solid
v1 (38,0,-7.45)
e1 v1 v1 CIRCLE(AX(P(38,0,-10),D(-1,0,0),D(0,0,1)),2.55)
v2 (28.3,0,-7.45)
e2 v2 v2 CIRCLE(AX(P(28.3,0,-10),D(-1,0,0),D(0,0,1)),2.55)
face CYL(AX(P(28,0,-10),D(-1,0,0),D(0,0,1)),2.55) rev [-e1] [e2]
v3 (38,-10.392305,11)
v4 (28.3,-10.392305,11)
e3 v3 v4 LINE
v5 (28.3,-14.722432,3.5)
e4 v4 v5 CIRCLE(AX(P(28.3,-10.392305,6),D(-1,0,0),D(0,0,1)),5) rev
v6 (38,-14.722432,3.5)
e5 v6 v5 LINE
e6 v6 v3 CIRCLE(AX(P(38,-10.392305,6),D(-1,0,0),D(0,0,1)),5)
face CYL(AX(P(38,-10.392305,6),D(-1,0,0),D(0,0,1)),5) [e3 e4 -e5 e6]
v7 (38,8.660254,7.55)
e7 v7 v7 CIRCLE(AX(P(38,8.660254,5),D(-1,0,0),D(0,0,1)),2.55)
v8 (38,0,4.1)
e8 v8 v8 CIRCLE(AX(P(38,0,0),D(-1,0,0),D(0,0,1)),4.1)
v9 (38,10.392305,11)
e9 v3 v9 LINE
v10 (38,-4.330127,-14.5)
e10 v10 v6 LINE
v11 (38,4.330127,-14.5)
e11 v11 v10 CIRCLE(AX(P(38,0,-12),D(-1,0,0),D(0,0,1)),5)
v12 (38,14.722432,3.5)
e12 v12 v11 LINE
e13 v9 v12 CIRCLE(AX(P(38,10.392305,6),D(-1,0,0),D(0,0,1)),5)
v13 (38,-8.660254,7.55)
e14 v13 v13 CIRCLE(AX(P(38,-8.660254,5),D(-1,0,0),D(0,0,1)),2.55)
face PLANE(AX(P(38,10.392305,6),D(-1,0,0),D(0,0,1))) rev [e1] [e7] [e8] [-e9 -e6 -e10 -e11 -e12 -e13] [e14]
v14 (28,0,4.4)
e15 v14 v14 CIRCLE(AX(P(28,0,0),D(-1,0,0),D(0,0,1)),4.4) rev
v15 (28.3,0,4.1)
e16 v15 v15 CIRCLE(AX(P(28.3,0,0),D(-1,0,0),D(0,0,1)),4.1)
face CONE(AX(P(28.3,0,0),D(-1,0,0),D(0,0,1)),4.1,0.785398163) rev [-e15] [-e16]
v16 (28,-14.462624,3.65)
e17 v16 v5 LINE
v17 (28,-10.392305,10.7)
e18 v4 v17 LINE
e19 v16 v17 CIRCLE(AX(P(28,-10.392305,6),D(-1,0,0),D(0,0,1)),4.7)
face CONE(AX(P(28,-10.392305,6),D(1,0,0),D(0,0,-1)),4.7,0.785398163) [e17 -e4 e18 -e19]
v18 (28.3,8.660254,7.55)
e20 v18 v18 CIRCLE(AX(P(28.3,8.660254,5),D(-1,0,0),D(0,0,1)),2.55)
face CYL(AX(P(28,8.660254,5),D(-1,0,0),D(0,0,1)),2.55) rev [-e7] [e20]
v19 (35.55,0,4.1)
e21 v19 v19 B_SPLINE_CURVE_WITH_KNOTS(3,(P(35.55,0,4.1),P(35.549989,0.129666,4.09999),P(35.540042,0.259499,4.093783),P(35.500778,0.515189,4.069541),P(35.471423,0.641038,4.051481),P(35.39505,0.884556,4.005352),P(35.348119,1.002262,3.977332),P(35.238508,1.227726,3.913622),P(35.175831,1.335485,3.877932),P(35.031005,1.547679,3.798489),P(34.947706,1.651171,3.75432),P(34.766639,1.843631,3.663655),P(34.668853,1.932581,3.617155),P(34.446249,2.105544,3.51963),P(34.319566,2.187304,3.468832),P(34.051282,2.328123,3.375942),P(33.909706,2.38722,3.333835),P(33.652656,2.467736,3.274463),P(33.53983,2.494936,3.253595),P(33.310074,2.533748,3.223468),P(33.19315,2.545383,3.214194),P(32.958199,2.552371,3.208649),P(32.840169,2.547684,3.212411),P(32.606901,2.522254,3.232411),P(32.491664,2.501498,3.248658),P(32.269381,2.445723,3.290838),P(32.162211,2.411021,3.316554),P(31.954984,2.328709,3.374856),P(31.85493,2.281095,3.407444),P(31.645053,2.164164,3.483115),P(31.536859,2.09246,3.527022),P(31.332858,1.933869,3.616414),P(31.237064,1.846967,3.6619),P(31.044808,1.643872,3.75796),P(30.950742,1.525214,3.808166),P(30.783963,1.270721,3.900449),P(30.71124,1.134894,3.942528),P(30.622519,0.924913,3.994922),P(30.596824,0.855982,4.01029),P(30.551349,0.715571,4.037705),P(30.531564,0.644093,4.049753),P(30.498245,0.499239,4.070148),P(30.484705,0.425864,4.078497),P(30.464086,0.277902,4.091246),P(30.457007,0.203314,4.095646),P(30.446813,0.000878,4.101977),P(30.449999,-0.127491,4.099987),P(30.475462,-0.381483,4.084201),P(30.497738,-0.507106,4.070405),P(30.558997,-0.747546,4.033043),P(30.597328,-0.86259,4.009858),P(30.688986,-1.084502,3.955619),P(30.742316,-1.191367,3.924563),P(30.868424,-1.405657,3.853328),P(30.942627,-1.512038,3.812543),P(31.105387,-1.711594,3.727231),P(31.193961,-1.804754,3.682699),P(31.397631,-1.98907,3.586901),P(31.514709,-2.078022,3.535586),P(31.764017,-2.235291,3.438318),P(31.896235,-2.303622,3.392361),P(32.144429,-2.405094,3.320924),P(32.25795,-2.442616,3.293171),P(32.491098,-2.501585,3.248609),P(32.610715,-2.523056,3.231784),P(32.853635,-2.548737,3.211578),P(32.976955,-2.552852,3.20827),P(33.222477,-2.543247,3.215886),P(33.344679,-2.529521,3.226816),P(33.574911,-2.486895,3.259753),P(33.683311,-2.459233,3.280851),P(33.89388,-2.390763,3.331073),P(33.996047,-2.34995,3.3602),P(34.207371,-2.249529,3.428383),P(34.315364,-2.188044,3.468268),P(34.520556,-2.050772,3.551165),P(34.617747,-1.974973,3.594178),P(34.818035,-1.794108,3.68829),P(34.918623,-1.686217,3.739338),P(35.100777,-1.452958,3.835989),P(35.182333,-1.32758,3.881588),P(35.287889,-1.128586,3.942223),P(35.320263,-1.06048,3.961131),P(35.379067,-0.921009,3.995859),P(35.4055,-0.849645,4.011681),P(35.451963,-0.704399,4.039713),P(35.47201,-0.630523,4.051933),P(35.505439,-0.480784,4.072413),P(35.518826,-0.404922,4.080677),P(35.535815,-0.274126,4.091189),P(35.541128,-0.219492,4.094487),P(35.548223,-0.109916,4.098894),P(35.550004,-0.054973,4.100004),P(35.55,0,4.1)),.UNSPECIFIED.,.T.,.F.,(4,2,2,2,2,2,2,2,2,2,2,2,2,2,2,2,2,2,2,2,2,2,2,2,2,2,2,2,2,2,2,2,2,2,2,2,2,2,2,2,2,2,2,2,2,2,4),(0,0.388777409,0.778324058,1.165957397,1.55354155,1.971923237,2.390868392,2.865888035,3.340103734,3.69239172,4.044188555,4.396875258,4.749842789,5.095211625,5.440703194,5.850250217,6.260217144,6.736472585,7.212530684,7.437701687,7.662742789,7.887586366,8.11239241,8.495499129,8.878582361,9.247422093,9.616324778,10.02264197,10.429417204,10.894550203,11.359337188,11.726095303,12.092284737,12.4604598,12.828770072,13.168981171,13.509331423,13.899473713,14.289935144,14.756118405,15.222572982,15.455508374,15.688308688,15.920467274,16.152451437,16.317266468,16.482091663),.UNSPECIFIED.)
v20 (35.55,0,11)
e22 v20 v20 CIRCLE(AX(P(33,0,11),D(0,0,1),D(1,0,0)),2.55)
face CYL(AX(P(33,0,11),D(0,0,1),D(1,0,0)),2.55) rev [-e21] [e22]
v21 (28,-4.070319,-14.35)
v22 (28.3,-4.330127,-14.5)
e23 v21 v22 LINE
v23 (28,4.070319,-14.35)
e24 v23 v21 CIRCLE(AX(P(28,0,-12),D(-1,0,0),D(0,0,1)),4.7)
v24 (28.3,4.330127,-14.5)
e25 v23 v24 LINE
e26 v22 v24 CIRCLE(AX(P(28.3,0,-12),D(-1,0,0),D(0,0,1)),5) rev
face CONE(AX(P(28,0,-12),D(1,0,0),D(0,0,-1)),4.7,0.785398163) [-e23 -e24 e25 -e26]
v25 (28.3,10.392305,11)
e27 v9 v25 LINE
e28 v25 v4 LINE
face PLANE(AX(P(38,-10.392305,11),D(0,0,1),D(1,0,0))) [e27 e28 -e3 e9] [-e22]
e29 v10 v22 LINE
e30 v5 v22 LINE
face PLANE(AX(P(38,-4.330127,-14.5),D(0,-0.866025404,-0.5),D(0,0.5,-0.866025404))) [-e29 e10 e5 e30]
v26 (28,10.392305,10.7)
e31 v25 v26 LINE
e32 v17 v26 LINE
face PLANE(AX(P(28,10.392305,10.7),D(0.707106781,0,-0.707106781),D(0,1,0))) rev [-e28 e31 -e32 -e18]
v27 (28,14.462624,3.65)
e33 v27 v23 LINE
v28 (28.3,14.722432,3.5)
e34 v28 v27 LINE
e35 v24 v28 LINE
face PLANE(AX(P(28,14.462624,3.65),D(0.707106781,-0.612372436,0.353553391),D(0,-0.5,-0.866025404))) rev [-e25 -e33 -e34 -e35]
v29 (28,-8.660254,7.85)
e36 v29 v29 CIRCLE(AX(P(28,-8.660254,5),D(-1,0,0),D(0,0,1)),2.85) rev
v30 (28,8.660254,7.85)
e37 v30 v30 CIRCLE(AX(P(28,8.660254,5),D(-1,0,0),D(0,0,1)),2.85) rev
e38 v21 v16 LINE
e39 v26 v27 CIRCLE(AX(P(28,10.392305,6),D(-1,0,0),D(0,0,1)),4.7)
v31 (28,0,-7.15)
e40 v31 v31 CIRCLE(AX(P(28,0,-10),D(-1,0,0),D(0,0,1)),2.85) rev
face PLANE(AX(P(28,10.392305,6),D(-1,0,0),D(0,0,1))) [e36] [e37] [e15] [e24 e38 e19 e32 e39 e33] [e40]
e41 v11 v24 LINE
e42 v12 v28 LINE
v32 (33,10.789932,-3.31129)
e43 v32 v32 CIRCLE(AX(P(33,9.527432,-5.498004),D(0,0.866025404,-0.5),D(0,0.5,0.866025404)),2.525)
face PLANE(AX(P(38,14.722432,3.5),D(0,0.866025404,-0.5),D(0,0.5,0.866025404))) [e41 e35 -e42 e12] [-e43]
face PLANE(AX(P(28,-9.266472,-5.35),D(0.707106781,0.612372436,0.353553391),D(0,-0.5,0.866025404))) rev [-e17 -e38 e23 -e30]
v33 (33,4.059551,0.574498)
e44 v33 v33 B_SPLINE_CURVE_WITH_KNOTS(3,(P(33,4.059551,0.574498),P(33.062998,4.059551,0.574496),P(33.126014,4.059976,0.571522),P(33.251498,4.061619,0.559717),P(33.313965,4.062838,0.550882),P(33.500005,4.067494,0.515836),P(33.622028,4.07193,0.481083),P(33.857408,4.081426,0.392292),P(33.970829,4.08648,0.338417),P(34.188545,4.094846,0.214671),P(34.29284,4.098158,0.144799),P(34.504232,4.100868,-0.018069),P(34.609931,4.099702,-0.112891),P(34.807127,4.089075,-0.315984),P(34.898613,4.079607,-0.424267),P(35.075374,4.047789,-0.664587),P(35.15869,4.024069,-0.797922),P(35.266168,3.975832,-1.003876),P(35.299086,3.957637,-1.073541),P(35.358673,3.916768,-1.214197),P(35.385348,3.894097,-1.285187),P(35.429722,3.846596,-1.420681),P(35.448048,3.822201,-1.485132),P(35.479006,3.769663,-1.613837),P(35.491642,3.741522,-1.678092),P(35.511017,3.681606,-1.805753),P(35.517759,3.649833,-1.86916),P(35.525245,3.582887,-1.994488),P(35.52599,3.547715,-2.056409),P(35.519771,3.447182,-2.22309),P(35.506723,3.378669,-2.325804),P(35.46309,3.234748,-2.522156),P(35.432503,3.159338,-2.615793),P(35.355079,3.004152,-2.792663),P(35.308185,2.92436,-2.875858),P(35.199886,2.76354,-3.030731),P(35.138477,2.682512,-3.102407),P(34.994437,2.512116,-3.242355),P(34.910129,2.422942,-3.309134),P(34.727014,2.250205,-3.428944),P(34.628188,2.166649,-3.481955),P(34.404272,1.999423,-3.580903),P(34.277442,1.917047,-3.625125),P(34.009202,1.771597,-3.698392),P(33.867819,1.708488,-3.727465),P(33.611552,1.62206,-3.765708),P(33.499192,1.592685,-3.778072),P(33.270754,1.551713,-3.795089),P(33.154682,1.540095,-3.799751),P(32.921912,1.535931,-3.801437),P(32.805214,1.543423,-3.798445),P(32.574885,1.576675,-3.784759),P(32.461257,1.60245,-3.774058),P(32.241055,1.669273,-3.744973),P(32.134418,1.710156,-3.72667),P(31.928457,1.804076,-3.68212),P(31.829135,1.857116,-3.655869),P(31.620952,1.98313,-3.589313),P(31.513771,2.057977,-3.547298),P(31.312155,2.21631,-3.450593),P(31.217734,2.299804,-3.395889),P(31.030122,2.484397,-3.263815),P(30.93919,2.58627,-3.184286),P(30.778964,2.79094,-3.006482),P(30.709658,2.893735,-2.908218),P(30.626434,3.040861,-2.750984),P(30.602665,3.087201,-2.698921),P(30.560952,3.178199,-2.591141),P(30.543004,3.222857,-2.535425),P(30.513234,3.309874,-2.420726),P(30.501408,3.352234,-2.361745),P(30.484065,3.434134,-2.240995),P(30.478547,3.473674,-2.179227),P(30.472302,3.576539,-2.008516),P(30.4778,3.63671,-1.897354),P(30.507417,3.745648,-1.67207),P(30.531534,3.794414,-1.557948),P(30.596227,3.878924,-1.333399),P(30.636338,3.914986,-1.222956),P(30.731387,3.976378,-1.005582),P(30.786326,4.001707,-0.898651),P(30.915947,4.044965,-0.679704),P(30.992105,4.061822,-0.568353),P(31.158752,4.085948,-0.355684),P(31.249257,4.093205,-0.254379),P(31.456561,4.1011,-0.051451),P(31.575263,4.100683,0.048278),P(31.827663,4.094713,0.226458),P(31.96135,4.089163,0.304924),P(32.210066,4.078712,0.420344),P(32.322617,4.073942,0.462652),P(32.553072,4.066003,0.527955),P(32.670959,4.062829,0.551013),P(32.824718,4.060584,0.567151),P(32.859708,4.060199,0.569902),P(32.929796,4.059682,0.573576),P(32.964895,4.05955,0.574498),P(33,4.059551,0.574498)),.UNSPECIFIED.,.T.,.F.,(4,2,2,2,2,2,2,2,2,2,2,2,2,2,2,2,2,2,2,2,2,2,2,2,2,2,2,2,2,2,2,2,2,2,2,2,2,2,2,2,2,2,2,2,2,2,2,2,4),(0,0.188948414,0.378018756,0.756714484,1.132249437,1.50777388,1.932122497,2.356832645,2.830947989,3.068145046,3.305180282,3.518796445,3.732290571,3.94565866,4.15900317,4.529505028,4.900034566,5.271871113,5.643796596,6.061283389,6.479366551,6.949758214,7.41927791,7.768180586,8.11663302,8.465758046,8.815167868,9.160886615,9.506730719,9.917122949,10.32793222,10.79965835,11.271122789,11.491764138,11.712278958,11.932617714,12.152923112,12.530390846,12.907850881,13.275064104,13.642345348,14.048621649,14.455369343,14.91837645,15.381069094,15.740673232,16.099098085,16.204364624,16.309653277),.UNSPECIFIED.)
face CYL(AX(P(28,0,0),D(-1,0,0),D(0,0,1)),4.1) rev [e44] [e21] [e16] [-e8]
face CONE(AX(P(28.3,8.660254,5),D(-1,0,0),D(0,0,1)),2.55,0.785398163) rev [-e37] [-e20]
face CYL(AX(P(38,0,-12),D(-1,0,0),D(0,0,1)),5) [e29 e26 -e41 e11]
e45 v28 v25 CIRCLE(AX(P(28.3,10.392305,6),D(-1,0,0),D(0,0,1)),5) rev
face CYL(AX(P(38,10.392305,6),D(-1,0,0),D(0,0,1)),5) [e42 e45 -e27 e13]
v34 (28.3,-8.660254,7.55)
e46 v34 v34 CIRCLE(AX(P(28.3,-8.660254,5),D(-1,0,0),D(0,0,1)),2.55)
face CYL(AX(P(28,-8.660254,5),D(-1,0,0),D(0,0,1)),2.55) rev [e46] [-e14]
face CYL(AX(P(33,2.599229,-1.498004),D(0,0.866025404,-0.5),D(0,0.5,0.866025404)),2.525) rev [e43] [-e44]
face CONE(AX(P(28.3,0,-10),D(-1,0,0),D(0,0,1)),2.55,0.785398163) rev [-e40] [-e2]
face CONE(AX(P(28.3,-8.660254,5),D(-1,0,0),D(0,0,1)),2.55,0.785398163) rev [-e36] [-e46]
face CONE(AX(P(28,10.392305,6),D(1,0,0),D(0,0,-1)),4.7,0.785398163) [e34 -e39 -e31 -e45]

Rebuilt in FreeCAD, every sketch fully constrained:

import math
import FreeCAD as App
import Part
import Sketcher

V = App.Vector
Q = App.Units.Quantity


def edges_at(feature, points):
    """Names of the edges that pass closest to the given points."""
    edges = feature.Shape.Edges
    near = lambda p: min(range(len(edges)), key=lambda i: edges[i].distToShape(Part.Vertex(*p))[0])
    return sorted({f"Edge{near(p) + 1}" for p in points})

doc = App.newDocument("Part")
body = doc.addObject("PartDesign::Body", "Body")

# Sketch on YZ plane
sketch1 = body.newObject("Sketcher::SketchObject", "Sketch")
sketch1.AttachmentSupport = (doc.getObject("YZ_Plane"), [""])
sketch1.MapMode = "FlatFace"
sketch1.AttachmentOffset = App.Placement(V(0, 0, 28), App.Rotation())
sketch1.addGeometry([
    Part.LineSegment(V(15, 4, 0), V(4, -14, 0)),  # 0
    Part.ArcOfCircle(Part.Circle(V(0, -12, 0), V(0, 0, 1), 5), math.radians(-150), math.radians(-30)),  # 1
    Part.LineSegment(V(-4, -14, 0), V(-15, 4, 0)),  # 2
    Part.ArcOfCircle(Part.Circle(V(-10, 6, 0), V(0, 0, 1), 5), math.radians(90), math.radians(210)),  # 3
    Part.LineSegment(V(-10, 11, 0), V(10, 11, 0)),  # 4
    Part.ArcOfCircle(Part.Circle(V(10, 6, 0), V(0, 0, 1), 5), math.radians(-30), math.radians(90)),  # 5
], False)
sketch1.addConstraint([
    Sketcher.Constraint("Tangent", 0, 2, 1, 2),
    Sketcher.Constraint("Tangent", 1, 1, 2, 1),
    Sketcher.Constraint("Tangent", 2, 2, 3, 2),
    Sketcher.Constraint("Tangent", 3, 1, 4, 1),
    Sketcher.Constraint("Tangent", 4, 2, 5, 2),
    Sketcher.Constraint("Tangent", 5, 1, 0, 1),
    Sketcher.Constraint("Horizontal", 4),
    Sketcher.Constraint("Equal", 1, 3),
    Sketcher.Constraint("Equal", 3, 5),
    Sketcher.Constraint("Symmetric", 0, 2, 1, 1, -2),
    Sketcher.Constraint("Radius", 1, 5.0),
    Sketcher.Constraint("Angle", 0, Q("-120 deg")),
    Sketcher.Constraint("DistanceY", 1, 3, -1, 1, 12.0),
    Sketcher.Constraint("DistanceY", -1, 1, 3, 3, 6.0),
])
pad1 = body.newObject("PartDesign::Pad", "Pad")
pad1.Profile = sketch1
pad1.Length = 10

# Sketch on YZ plane
sketch2 = body.newObject("Sketcher::SketchObject", "Sketch001")
sketch2.AttachmentSupport = (doc.getObject("YZ_Plane"), [""])
sketch2.MapMode = "FlatFace"
sketch2.AttachmentOffset = App.Placement(V(0, 0, 28), App.Rotation())
sketch2.addGeometry([
    Part.Circle(V(0, -10, 0), V(0, 0, 1), 2.5),
    Part.Circle(V(8.7, 5, 0), V(0, 0, 1), 2.5),
    Part.Circle(V(-8.7, 5, 0), V(0, 0, 1), 2.5),
], False)
sketch2.addConstraint([
    Sketcher.Constraint("Equal", 0, 1),
    Sketcher.Constraint("Equal", 1, 2),
    Sketcher.Constraint("Symmetric", 1, 3, 2, 3, -2),
    Sketcher.Constraint("PointOnObject", 0, 3, -2),
    Sketcher.Constraint("Diameter", 0, 5.1),
    Sketcher.Constraint("DistanceY", 0, 3, -1, 1, 10.0),
    Sketcher.Constraint("DistanceY", -1, 1, 1, 3, 5.0),
    Sketcher.Constraint("DistanceX", 2, 3, 1, 3, 17.320508),
])
doc.recompute()
hole = body.newObject("PartDesign::Hole", "Hole")
hole.Profile = sketch2
hole.ThreadType = "None"
hole.Diameter = 5.1
hole.DepthType = "ThroughAll"
hole.Reversed = True

# Sketch on YZ plane
sketch3 = body.newObject("Sketcher::SketchObject", "Sketch002")
sketch3.AttachmentSupport = (doc.getObject("YZ_Plane"), [""])
sketch3.MapMode = "FlatFace"
sketch3.AttachmentOffset = App.Placement(V(0, 0, 28), App.Rotation())
sketch3.addGeometry(Part.Circle(V(0, 0, 0), V(0, 0, 1), 4.1), False)
sketch3.addConstraint([
    Sketcher.Constraint("Coincident", 0, 3, -1, 1),
    Sketcher.Constraint("Diameter", 0, 8.2),
])
doc.recompute()
hole2 = body.newObject("PartDesign::Hole", "Hole001")
hole2.Profile = sketch3
hole2.ThreadType = "None"
hole2.Diameter = 8.2
hole2.DepthType = "ThroughAll"
hole2.Reversed = True

# Sketch on XY plane
sketch4 = body.newObject("Sketcher::SketchObject", "Sketch003")
sketch4.AttachmentSupport = (doc.getObject("XY_Plane"), [""])
sketch4.MapMode = "FlatFace"
sketch4.AttachmentOffset = App.Placement(V(0, 0, 11), App.Rotation())
sketch4.addGeometry(Part.Circle(V(33, 0, 0), V(0, 0, 1), 2.5), False)
sketch4.addConstraint([
    Sketcher.Constraint("PointOnObject", 0, 3, -1),
    Sketcher.Constraint("Diameter", 0, 5.1),
    Sketcher.Constraint("DistanceX", -1, 1, 0, 3, 33.0),
])
pocket1 = body.newObject("PartDesign::Pocket", "Pocket")
pocket1.Profile = sketch4
pocket1.Type = "UpToFirst"
doc.recompute()

chamfer = body.newObject("PartDesign::Chamfer", "Chamfer")
chamfer.Base = (pocket1, edges_at(pocket1, [
    (28, -8.66, 7.55),
    (28, 8.66, 7.55),
    (28, 0, -7.45),
    (28, 0, 4.1),
    (28, 0, 11),
    (28, -14.722, 8.5),
    (28, -9.526, -5.5),
    (28, 0, -17),
    (28, 9.526, -5.5),
    (28, 14.722, 8.5),
]))
chamfer.Size = 0.3

# Sketch on an angled plane
sketch5 = body.newObject("Sketcher::SketchObject", "Sketch004")
sketch5.Placement = App.Placement(V(0, 9.526279, -5.5), App.Rotation(V(1, 0, 0), V(0, -0.5, -0.866025404), V(0, 0.866025404, -0.5), "ZXY"))
sketch5.addGeometry(Part.Circle(V(33, 0, 0), V(0, 0, 1), 2.5), False)
sketch5.addConstraint([
    Sketcher.Constraint("Diameter", 0, 5.05),
    Sketcher.Constraint("DistanceX", -1, 1, 0, 3, 33.0),
    Sketcher.Constraint("DistanceY", 0, 3, -1, 1, 0.002305),
])
pocket2 = body.newObject("PartDesign::Pocket", "Pocket001")
pocket2.Profile = sketch5
pocket2.Length = 8

doc.recompute()
